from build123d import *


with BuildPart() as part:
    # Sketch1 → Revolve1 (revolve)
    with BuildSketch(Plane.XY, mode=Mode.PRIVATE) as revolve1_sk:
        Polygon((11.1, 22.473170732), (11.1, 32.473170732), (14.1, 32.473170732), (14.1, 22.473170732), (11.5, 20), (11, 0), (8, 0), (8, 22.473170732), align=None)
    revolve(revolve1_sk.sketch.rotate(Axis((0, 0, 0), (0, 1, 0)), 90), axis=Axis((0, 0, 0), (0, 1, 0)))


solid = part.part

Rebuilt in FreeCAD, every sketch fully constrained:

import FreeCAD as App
import Part
import Sketcher
Q = App.Units.Quantity


def add_polygon(sketch, points):
    """Adds a closed chain of lines whose ends are joined by coincident constraints."""
    first, n = sketch.GeometryCount, len(points)
    for a, b in zip(points, points[1:] + points[:1]):
        sketch.addGeometry(Part.LineSegment(App.Vector(*a, 0), App.Vector(*b, 0)), False)
    for i in range(n):
        sketch.addConstraint(Sketcher.Constraint("Coincident", first + i, 2, first + (i + 1) % n, 1))

doc = App.newDocument("Part")
body = doc.addObject("PartDesign::Body", "Body")

sketch1 = doc.addObject("Sketcher::SketchObject", "Sketch")
body.addObject(sketch1)
sketch1.AttachmentSupport = (doc.XY_Plane, [""])
sketch1.MapMode = "FlatFace"
add_polygon(sketch1, [(11.1, 32.5), (11.1, 22.5), (8, 22.5), (8, 0), (11, 0), (11.5, 20), (14.1, 22.5), (14.1, 32.5)])
sketch1.addConstraint([
    Sketcher.Constraint("Vertical", 0),
    Sketcher.Constraint("Horizontal", 1),
    Sketcher.Constraint("Vertical", 2),
    Sketcher.Constraint("Horizontal", 3),
    Sketcher.Constraint("Vertical", 6),
    Sketcher.Constraint("Horizontal", 7),
    Sketcher.Constraint("PointOnObject", 2, 2, -1),
    Sketcher.Constraint("Horizontal", 1, 2, 5, 2),
    Sketcher.Constraint("Equal", 3, 7),
    Sketcher.Constraint("DistanceX", 3, 1, 3, 2, Q("3 mm")),
    Sketcher.Constraint("DistanceY", 0, 2, 0, 1, Q("10 mm")),
    Sketcher.Constraint("DistanceX", 1, 2, 1, 1, Q("3.1 mm")),
    Sketcher.Constraint("DistanceX", -1, 1, 1, 2, Q("8 mm")),
    Sketcher.Constraint("DistanceY", -1, 1, 4, 2, Q("20 mm")),
    Sketcher.Constraint("DistanceX", -1, 1, 4, 2, Q("11.5 mm")),
    Sketcher.Constraint("DistanceY", 2, 2, 2, 1, Q("22.473171 mm")),
])
revolution = doc.addObject("PartDesign::Revolution", "Revolution")
body.addObject(revolution)
revolution.Profile = sketch1
revolution.ReferenceAxis = (sketch1, ["V_Axis"])
revolution.Angle = 360

doc.recompute()
